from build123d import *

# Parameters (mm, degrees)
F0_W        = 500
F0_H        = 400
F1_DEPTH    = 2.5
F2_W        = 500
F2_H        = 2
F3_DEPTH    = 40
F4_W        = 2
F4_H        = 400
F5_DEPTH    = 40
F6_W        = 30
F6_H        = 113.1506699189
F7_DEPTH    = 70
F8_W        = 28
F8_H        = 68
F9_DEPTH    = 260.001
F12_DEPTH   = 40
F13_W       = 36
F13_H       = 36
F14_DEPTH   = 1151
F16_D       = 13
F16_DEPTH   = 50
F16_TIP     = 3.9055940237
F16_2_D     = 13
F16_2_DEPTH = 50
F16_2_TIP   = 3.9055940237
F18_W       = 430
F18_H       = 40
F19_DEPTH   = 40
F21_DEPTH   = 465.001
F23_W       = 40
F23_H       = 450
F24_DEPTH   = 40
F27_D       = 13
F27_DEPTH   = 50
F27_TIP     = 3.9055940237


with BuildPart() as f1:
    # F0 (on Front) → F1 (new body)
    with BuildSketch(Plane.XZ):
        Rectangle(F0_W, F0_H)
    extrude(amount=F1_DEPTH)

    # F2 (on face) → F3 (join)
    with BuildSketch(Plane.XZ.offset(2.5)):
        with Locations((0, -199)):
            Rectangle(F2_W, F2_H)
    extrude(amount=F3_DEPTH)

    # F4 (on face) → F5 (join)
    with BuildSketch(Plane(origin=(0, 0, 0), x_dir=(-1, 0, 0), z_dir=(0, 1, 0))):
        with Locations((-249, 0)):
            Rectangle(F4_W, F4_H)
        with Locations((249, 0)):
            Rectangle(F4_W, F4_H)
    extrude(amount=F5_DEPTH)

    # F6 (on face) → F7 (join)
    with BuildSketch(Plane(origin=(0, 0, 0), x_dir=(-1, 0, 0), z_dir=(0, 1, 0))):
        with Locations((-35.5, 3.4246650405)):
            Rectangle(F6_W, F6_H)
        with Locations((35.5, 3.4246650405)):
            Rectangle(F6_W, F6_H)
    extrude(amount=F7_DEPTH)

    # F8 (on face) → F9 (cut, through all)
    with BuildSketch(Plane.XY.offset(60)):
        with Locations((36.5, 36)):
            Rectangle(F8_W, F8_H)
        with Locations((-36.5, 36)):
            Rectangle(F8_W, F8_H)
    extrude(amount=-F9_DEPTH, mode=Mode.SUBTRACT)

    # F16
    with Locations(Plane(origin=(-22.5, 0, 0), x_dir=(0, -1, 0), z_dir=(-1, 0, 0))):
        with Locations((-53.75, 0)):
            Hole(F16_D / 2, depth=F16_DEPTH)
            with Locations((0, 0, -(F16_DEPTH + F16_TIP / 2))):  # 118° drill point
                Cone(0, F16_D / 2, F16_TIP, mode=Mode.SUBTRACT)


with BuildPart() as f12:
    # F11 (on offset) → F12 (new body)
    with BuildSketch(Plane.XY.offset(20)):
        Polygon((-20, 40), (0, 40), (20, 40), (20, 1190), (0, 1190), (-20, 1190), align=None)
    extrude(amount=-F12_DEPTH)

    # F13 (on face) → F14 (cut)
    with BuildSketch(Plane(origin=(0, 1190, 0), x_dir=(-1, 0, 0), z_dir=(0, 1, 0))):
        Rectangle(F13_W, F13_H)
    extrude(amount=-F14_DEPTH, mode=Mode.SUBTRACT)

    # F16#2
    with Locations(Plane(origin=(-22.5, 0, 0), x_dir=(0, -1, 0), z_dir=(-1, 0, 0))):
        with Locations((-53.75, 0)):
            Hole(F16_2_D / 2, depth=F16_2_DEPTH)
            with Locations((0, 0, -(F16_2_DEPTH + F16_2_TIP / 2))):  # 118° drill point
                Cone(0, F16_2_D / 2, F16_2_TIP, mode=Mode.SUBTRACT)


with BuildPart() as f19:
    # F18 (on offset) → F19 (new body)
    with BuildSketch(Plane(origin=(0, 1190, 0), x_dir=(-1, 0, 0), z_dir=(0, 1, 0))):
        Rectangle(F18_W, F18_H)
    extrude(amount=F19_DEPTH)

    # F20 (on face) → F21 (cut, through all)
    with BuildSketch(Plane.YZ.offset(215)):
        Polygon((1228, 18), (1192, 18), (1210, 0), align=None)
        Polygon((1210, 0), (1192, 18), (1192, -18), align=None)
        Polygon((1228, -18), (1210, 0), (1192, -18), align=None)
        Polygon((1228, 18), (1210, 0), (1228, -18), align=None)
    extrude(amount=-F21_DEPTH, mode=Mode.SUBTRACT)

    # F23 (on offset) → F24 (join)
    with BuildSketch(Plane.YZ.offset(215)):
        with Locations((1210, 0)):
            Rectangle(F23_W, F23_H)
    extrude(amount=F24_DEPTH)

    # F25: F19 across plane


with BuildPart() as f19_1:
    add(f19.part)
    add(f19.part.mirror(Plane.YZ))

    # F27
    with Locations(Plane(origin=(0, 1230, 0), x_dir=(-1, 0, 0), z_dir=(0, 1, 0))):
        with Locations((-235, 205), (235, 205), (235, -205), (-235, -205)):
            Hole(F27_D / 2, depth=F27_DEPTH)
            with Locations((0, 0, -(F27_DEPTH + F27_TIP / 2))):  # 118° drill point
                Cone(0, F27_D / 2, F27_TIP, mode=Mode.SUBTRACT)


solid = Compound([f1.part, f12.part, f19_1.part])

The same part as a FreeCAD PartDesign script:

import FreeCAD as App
import Part
import Sketcher
from FreeCAD import Vector
Q = App.Units.Quantity


def add_polygon(sketch, points):
    """Adds a closed chain of lines whose ends are joined by coincident constraints."""
    first, n = sketch.GeometryCount, len(points)
    for a, b in zip(points, points[1:] + points[:1]):
        sketch.addGeometry(Part.LineSegment(App.Vector(*a, 0), App.Vector(*b, 0)), False)
    for i in range(n):
        sketch.addConstraint(Sketcher.Constraint("Coincident", first + i, 2, first + (i + 1) % n, 1))

doc = App.newDocument("Part")
body = doc.addObject("PartDesign::Body", "Body")

# Sketch on XZ plane
sketch1 = body.newObject("Sketcher::SketchObject", "Sketch")
sketch1.AttachmentSupport = (doc.getObject("XZ_Plane"), [""])
sketch1.MapMode = "FlatFace"
add_polygon(sketch1, [(-250, 200), (-250, -200), (250, -200), (250, 200)])  # lines 0-3
sketch1.addConstraint(Sketcher.Constraint("Vertical", 0))
sketch1.addConstraint(Sketcher.Constraint("Horizontal", 1))
sketch1.addConstraint(Sketcher.Constraint("Vertical", 2))
sketch1.addConstraint(Sketcher.Constraint("Horizontal", 3))
sketch1.addConstraint(Sketcher.Constraint("Symmetric", 0, 2, 2, 2, -1, 1))
sketch1.addConstraint(Sketcher.Constraint("DistanceX", 1, 1, 1, 2, Q("500 mm")))
sketch1.addConstraint(Sketcher.Constraint("DistanceY", 0, 2, 0, 1, Q("400 mm")))
pad1 = body.newObject("PartDesign::Pad", "Pad")
pad1.Profile = sketch1
pad1.Length = 2.5

# Sketch on XZ plane
sketch2 = body.newObject("Sketcher::SketchObject", "Sketch001")
sketch2.AttachmentSupport = (doc.getObject("XZ_Plane"), [""])
sketch2.MapMode = "FlatFace"
sketch2.AttachmentOffset = App.Placement(Vector(0, 0, 2.5), App.Rotation())
add_polygon(sketch2, [(-250, -198), (-250, -200), (250, -200), (250, -198)])  # lines 0-3
sketch2.addConstraint(Sketcher.Constraint("Vertical", 0))
sketch2.addConstraint(Sketcher.Constraint("Horizontal", 1))
sketch2.addConstraint(Sketcher.Constraint("Vertical", 2))
sketch2.addConstraint(Sketcher.Constraint("Horizontal", 3))
sketch2.addConstraint(Sketcher.Constraint("DistanceX", 1, 1, 1, 2, Q("500 mm")))
sketch2.addConstraint(Sketcher.Constraint("DistanceY", 0, 2, 0, 1, Q("2 mm")))
sketch2.addConstraint(Sketcher.Constraint("DistanceX", 0, 2, -1, 1, Q("250 mm")))
sketch2.addConstraint(Sketcher.Constraint("DistanceY", 0, 2, -1, 1, Q("200 mm")))
pad2 = body.newObject("PartDesign::Pad", "Pad001")
pad2.Profile = sketch2
pad2.Length = 40

# Sketch on XZ plane
sketch3 = body.newObject("Sketcher::SketchObject", "Sketch002")
sketch3.AttachmentSupport = (doc.getObject("XZ_Plane"), [""])
sketch3.MapMode = "FlatFace"
add_polygon(sketch3, [(250, 200), (250, -200), (248, -200), (248, 200)])  # lines 0-3
add_polygon(sketch3, [(-248, 200), (-248, -200), (-250, -200), (-250, 200)])  # lines 4-7
sketch3.addConstraint(Sketcher.Constraint("Vertical", 0))
sketch3.addConstraint(Sketcher.Constraint("Horizontal", 1))
sketch3.addConstraint(Sketcher.Constraint("Vertical", 2))
sketch3.addConstraint(Sketcher.Constraint("Horizontal", 3))
sketch3.addConstraint(Sketcher.Constraint("Vertical", 4))
sketch3.addConstraint(Sketcher.Constraint("Horizontal", 5))
sketch3.addConstraint(Sketcher.Constraint("Vertical", 6))
sketch3.addConstraint(Sketcher.Constraint("Horizontal", 7))
sketch3.addConstraint(Sketcher.Constraint("Symmetric", 2, 2, 4, 2, -1, 1))
sketch3.addConstraint(Sketcher.Constraint("Symmetric", 0, 2, 6, 2, -1, 1))
sketch3.addConstraint(Sketcher.Constraint("Horizontal", 1, 2, 4, 2))
sketch3.addConstraint(Sketcher.Constraint("DistanceX", 1, 2, 1, 1, Q("2 mm")))
sketch3.addConstraint(Sketcher.Constraint("DistanceY", 0, 2, 0, 1, Q("400 mm")))
sketch3.addConstraint(Sketcher.Constraint("DistanceX", -1, 1, 0, 2, Q("250 mm")))
pad3 = body.newObject("PartDesign::Pad", "Pad002")
pad3.Profile = sketch3
pad3.Length = 40
pad3.Reversed = True

# Sketch on XZ plane
sketch4 = body.newObject("Sketcher::SketchObject", "Sketch003")
sketch4.AttachmentSupport = (doc.getObject("XZ_Plane"), [""])
sketch4.MapMode = "FlatFace"
add_polygon(sketch4, [(50, 60), (50, -53), (20, -53), (20, 60)])  # lines 0-3
add_polygon(sketch4, [(-20, 60), (-20, -53), (-50, -53), (-50, 60)])  # lines 4-7
sketch4.addConstraint(Sketcher.Constraint("Vertical", 0))
sketch4.addConstraint(Sketcher.Constraint("Horizontal", 1))
sketch4.addConstraint(Sketcher.Constraint("Vertical", 2))
sketch4.addConstraint(Sketcher.Constraint("Horizontal", 3))
sketch4.addConstraint(Sketcher.Constraint("Vertical", 4))
sketch4.addConstraint(Sketcher.Constraint("Horizontal", 5))
sketch4.addConstraint(Sketcher.Constraint("Vertical", 6))
sketch4.addConstraint(Sketcher.Constraint("Horizontal", 7))
sketch4.addConstraint(Sketcher.Constraint("Symmetric", 1, 2, 4, 2, -2))
sketch4.addConstraint(Sketcher.Constraint("Symmetric", 3, 2, 6, 2, -2))
sketch4.addConstraint(Sketcher.Constraint("DistanceX", 1, 2, 1, 1, Q("30 mm")))
sketch4.addConstraint(Sketcher.Constraint("DistanceY", -1, 1, 2, 2, Q("60 mm")))
sketch4.addConstraint(Sketcher.Constraint("DistanceX", 4, 2, 1, 2, Q("41 mm")))
sketch4.addConstraint(Sketcher.Constraint("DistanceY", 0, 2, 0, 1, Q("113.15067 mm")))
pad4 = body.newObject("PartDesign::Pad", "Pad003")
pad4.Profile = sketch4
pad4.Length = 70
pad4.Reversed = True

# Sketch on XY plane
sketch5 = body.newObject("Sketcher::SketchObject", "Sketch004")
sketch5.AttachmentSupport = (doc.getObject("XY_Plane"), [""])
sketch5.MapMode = "FlatFace"
sketch5.AttachmentOffset = App.Placement(Vector(0, 0, 60), App.Rotation())
add_polygon(sketch5, [(22, 70), (22, 2), (50, 2), (50, 70)])  # lines 0-3
add_polygon(sketch5, [(-50, 70), (-50, 2), (-22, 2), (-22, 70)])  # lines 4-7
sketch5.addConstraint(Sketcher.Constraint("Vertical", 0))
sketch5.addConstraint(Sketcher.Constraint("Horizontal", 1))
sketch5.addConstraint(Sketcher.Constraint("Vertical", 2))
sketch5.addConstraint(Sketcher.Constraint("Horizontal", 3))
sketch5.addConstraint(Sketcher.Constraint("Vertical", 4))
sketch5.addConstraint(Sketcher.Constraint("Horizontal", 5))
sketch5.addConstraint(Sketcher.Constraint("Vertical", 6))
sketch5.addConstraint(Sketcher.Constraint("Horizontal", 7))
sketch5.addConstraint(Sketcher.Constraint("Symmetric", 1, 2, 4, 2, -2))
sketch5.addConstraint(Sketcher.Constraint("Symmetric", 3, 2, 6, 2, -2))
sketch5.addConstraint(Sketcher.Constraint("DistanceX", 1, 1, 1, 2, Q("28 mm")))
sketch5.addConstraint(Sketcher.Constraint("DistanceY", 0, 2, 0, 1, Q("68 mm")))
sketch5.addConstraint(Sketcher.Constraint("DistanceY", -1, 1, 0, 2, Q("2 mm")))
sketch5.addConstraint(Sketcher.Constraint("DistanceX", 4, 2, 0, 2, Q("73 mm")))
pocket1 = body.newObject("PartDesign::Pocket", "Pocket")
pocket1.Profile = sketch5
pocket1.Type = "ThroughAll"

# Sketch on YZ plane
sketch6 = body.newObject("Sketcher::SketchObject", "Sketch005")
sketch6.AttachmentSupport = (doc.getObject("YZ_Plane"), [""])
sketch6.MapMode = "FlatFace"
sketch6.AttachmentOffset = App.Placement(Vector(0, 0, -22.5), App.Rotation())
sketch6.addGeometry(Part.Circle(Vector(54, 0, 0), Vector(0, 0, 1), 6), False)
sketch6.addConstraint(Sketcher.Constraint("PointOnObject", 0, 3, -1))
sketch6.addConstraint(Sketcher.Constraint("Diameter", 0, Q("13 mm")))
sketch6.addConstraint(Sketcher.Constraint("DistanceX", -1, 1, 0, 3, Q("53.75 mm")))
doc.recompute()
hole = body.newObject("PartDesign::Hole", "Hole")
hole.Profile = sketch6
hole.ThreadType = "None"
hole.Diameter = 13
hole.DepthType = "Dimension"
hole.Depth = 50
hole.DrillPoint = "Angled"
hole.DrillPointAngle = 118
hole.Reversed = True
body2 = doc.addObject("PartDesign::Body", "Body001")

# Sketch on XY plane
sketch7 = body2.newObject("Sketcher::SketchObject", "Sketch006")
sketch7.AttachmentSupport = (doc.getObject("XY_Plane001"), [""])
sketch7.MapMode = "FlatFace"
sketch7.AttachmentOffset = App.Placement(Vector(0, 0, 20), App.Rotation())
add_polygon(sketch7, [(-20, 40), (20, 40), (20, 1190), (-20, 1190)])  # lines 0-3
sketch7.addConstraint(Sketcher.Constraint("Horizontal", 0))
sketch7.addConstraint(Sketcher.Constraint("Vertical", 1))
sketch7.addConstraint(Sketcher.Constraint("Horizontal", 2))
sketch7.addConstraint(Sketcher.Constraint("Vertical", 3))
sketch7.addConstraint(Sketcher.Constraint("DistanceX", 0, 1, 0, 2, Q("40 mm")))
sketch7.addConstraint(Sketcher.Constraint("DistanceY", 1, 1, 1, 2, Q("1150 mm")))
sketch7.addConstraint(Sketcher.Constraint("DistanceX", -1, 1, 0, 2, Q("20 mm")))
sketch7.addConstraint(Sketcher.Constraint("DistanceY", -1, 1, 0, 2, Q("40 mm")))
pad5 = body2.newObject("PartDesign::Pad", "Pad004")
pad5.Profile = sketch7
pad5.Length = 40
pad5.Reversed = True

# Sketch on XZ plane
sketch8 = body2.newObject("Sketcher::SketchObject", "Sketch007")
sketch8.AttachmentSupport = (doc.getObject("XZ_Plane001"), [""])
sketch8.MapMode = "FlatFace"
sketch8.AttachmentOffset = App.Placement(Vector(0, 0, -1190), App.Rotation())
add_polygon(sketch8, [(18, 18), (18, -18), (-18, -18), (-18, 18)])  # lines 0-3
sketch8.addConstraint(Sketcher.Constraint("Vertical", 0))
sketch8.addConstraint(Sketcher.Constraint("Horizontal", 1))
sketch8.addConstraint(Sketcher.Constraint("Vertical", 2))
sketch8.addConstraint(Sketcher.Constraint("Horizontal", 3))
sketch8.addConstraint(Sketcher.Constraint("Symmetric", 0, 2, 2, 2, -1, 1))
sketch8.addConstraint(Sketcher.Constraint("Equal", 3, 0))
sketch8.addConstraint(Sketcher.Constraint("DistanceX", 1, 2, 1, 1, Q("36 mm")))
pocket2 = body2.newObject("PartDesign::Pocket", "Pocket001")
pocket2.Profile = sketch8
pocket2.Length = 1151
pocket2.Reversed = True

# Sketch on YZ plane
sketch9 = body2.newObject("Sketcher::SketchObject", "Sketch008")
sketch9.AttachmentSupport = (doc.getObject("YZ_Plane001"), [""])
sketch9.MapMode = "FlatFace"
sketch9.AttachmentOffset = App.Placement(Vector(0, 0, -22.5), App.Rotation())
sketch9.addGeometry(Part.Circle(Vector(54, 0, 0), Vector(0, 0, 1), 6), False)
sketch9.addConstraint(Sketcher.Constraint("PointOnObject", 0, 3, -1))
sketch9.addConstraint(Sketcher.Constraint("Diameter", 0, Q("13 mm")))
sketch9.addConstraint(Sketcher.Constraint("DistanceX", -1, 1, 0, 3, Q("53.75 mm")))
doc.recompute()
hole2 = body2.newObject("PartDesign::Hole", "Hole001")
hole2.Profile = sketch9
hole2.ThreadType = "None"
hole2.Diameter = 13
hole2.DepthType = "Dimension"
hole2.Depth = 50
hole2.DrillPoint = "Angled"
hole2.DrillPointAngle = 118
hole2.Reversed = True
body3 = doc.addObject("PartDesign::Body", "Body002")

# Sketch on XZ plane
sketch10 = body3.newObject("Sketcher::SketchObject", "Sketch009")
sketch10.AttachmentSupport = (doc.getObject("XZ_Plane002"), [""])
sketch10.MapMode = "FlatFace"
sketch10.AttachmentOffset = App.Placement(Vector(0, 0, -1190), App.Rotation())
add_polygon(sketch10, [(215, 20), (215, -20), (-215, -20), (-215, 20)])  # lines 0-3
sketch10.addConstraint(Sketcher.Constraint("Vertical", 0))
sketch10.addConstraint(Sketcher.Constraint("Horizontal", 1))
sketch10.addConstraint(Sketcher.Constraint("Vertical", 2))
sketch10.addConstraint(Sketcher.Constraint("Horizontal", 3))
sketch10.addConstraint(Sketcher.Constraint("Symmetric", 0, 2, 2, 2, -1, 1))
sketch10.addConstraint(Sketcher.Constraint("DistanceX", 1, 2, 1, 1, Q("430 mm")))
sketch10.addConstraint(Sketcher.Constraint("DistanceY", 0, 2, 0, 1, Q("40 mm")))
pad6 = body3.newObject("PartDesign::Pad", "Pad005")
pad6.Profile = sketch10
pad6.Length = 40
pad6.Reversed = True

# Sketch on YZ plane
sketch11 = body3.newObject("Sketcher::SketchObject", "Sketch010")
sketch11.AttachmentSupport = (doc.getObject("YZ_Plane002"), [""])
sketch11.MapMode = "FlatFace"
sketch11.AttachmentOffset = App.Placement(Vector(0, 0, 215), App.Rotation())
add_polygon(sketch11, [(1228, 18), (1192, 18), (1192, -18), (1228, -18)])  # lines 0-3
sketch11.addConstraint(Sketcher.Constraint("Horizontal", 0))
sketch11.addConstraint(Sketcher.Constraint("Vertical", 1))
sketch11.addConstraint(Sketcher.Constraint("Horizontal", 2))
sketch11.addConstraint(Sketcher.Constraint("Vertical", 3))
sketch11.addConstraint(Sketcher.Constraint("Equal", 2, 1))
sketch11.addConstraint(Sketcher.Constraint("DistanceX", 0, 2, 0, 1, Q("36 mm")))
sketch11.addConstraint(Sketcher.Constraint("DistanceX", -1, 1, 0, 2, Q("1192 mm")))
sketch11.addConstraint(Sketcher.Constraint("DistanceY", -1, 1, 0, 2, Q("18 mm")))
pocket3 = body3.newObject("PartDesign::Pocket", "Pocket002")
pocket3.Profile = sketch11
pocket3.Type = "ThroughAll"

# Sketch on YZ plane
sketch12 = body3.newObject("Sketcher::SketchObject", "Sketch011")
sketch12.AttachmentSupport = (doc.getObject("YZ_Plane002"), [""])
sketch12.MapMode = "FlatFace"
sketch12.AttachmentOffset = App.Placement(Vector(0, 0, 215), App.Rotation())
add_polygon(sketch12, [(1190, 225), (1190, -225), (1230, -225), (1230, 225)])  # lines 0-3
sketch12.addConstraint(Sketcher.Constraint("Vertical", 0))
sketch12.addConstraint(Sketcher.Constraint("Horizontal", 1))
sketch12.addConstraint(Sketcher.Constraint("Vertical", 2))
sketch12.addConstraint(Sketcher.Constraint("Horizontal", 3))
sketch12.addConstraint(Sketcher.Constraint("DistanceX", 1, 1, 1, 2, Q("40 mm")))
sketch12.addConstraint(Sketcher.Constraint("DistanceY", 0, 2, 0, 1, Q("450 mm")))
sketch12.addConstraint(Sketcher.Constraint("DistanceX", -1, 1, 0, 2, Q("1190 mm")))
sketch12.addConstraint(Sketcher.Constraint("DistanceY", 0, 2, -1, 1, Q("225 mm")))
pad7 = body3.newObject("PartDesign::Pad", "Pad006")
pad7.Profile = sketch12
pad7.Length = 40
body4 = doc.addObject("PartDesign::Body", "Body003")
doc.recompute()

body4.BaseFeature = body3
doc.recompute()

mirroring = doc.addObject("Part::Mirroring", "Mirroring")
mirroring.Source = body3
mirroring.Base = Vector(0, 0, 0)
mirroring.Normal = Vector(1, 0, 0)
body5 = doc.addObject("PartDesign::Body", "Body004")
body5.BaseFeature = mirroring
boolean = body4.newObject("PartDesign::Boolean", "Boolean")
boolean.Type = "Fuse"
boolean.addObjects([body5])
doc.recompute()

# Sketch on XZ plane
sketch13 = body4.newObject("Sketcher::SketchObject", "Sketch012")
sketch13.AttachmentSupport = (doc.getObject("XZ_Plane003"), [""])
sketch13.MapMode = "FlatFace"
sketch13.AttachmentOffset = App.Placement(Vector(0, 0, -1230), App.Rotation())
sketch13.addGeometry(Part.Circle(Vector(235, 205, 0), Vector(0, 0, 1), 6), False)
sketch13.addGeometry(Part.Circle(Vector(-235, 205, 0), Vector(0, 0, 1), 6), False)
sketch13.addGeometry(Part.Circle(Vector(-235, -205, 0), Vector(0, 0, 1), 6), False)
sketch13.addGeometry(Part.Circle(Vector(235, -205, 0), Vector(0, 0, 1), 6), False)
sketch13.addConstraint(Sketcher.Constraint("Equal", 0, 1))
sketch13.addConstraint(Sketcher.Constraint("Equal", 1, 2))
sketch13.addConstraint(Sketcher.Constraint("Equal", 2, 3))
sketch13.addConstraint(Sketcher.Constraint("Symmetric", 0, 3, 2, 3, -1, 1))
sketch13.addConstraint(Sketcher.Constraint("Symmetric", 1, 3, 3, 3, -1, 1))
sketch13.addConstraint(Sketcher.Constraint("Symmetric", 0, 3, 1, 3, -2))
sketch13.addConstraint(Sketcher.Constraint("Diameter", 0, Q("13 mm")))
sketch13.addConstraint(Sketcher.Constraint("DistanceX", -1, 1, 0, 3, Q("235 mm")))
sketch13.addConstraint(Sketcher.Constraint("DistanceY", -1, 1, 0, 3, Q("205 mm")))
doc.recompute()
hole3 = body4.newObject("PartDesign::Hole", "Hole002")
hole3.Profile = sketch13
hole3.ThreadType = "None"
hole3.Diameter = 13
hole3.DepthType = "Dimension"
hole3.Depth = 50
hole3.DrillPoint = "Angled"
hole3.DrillPointAngle = 118
hole3.Reversed = True
mirroring.Visibility = False

doc.recompute()
